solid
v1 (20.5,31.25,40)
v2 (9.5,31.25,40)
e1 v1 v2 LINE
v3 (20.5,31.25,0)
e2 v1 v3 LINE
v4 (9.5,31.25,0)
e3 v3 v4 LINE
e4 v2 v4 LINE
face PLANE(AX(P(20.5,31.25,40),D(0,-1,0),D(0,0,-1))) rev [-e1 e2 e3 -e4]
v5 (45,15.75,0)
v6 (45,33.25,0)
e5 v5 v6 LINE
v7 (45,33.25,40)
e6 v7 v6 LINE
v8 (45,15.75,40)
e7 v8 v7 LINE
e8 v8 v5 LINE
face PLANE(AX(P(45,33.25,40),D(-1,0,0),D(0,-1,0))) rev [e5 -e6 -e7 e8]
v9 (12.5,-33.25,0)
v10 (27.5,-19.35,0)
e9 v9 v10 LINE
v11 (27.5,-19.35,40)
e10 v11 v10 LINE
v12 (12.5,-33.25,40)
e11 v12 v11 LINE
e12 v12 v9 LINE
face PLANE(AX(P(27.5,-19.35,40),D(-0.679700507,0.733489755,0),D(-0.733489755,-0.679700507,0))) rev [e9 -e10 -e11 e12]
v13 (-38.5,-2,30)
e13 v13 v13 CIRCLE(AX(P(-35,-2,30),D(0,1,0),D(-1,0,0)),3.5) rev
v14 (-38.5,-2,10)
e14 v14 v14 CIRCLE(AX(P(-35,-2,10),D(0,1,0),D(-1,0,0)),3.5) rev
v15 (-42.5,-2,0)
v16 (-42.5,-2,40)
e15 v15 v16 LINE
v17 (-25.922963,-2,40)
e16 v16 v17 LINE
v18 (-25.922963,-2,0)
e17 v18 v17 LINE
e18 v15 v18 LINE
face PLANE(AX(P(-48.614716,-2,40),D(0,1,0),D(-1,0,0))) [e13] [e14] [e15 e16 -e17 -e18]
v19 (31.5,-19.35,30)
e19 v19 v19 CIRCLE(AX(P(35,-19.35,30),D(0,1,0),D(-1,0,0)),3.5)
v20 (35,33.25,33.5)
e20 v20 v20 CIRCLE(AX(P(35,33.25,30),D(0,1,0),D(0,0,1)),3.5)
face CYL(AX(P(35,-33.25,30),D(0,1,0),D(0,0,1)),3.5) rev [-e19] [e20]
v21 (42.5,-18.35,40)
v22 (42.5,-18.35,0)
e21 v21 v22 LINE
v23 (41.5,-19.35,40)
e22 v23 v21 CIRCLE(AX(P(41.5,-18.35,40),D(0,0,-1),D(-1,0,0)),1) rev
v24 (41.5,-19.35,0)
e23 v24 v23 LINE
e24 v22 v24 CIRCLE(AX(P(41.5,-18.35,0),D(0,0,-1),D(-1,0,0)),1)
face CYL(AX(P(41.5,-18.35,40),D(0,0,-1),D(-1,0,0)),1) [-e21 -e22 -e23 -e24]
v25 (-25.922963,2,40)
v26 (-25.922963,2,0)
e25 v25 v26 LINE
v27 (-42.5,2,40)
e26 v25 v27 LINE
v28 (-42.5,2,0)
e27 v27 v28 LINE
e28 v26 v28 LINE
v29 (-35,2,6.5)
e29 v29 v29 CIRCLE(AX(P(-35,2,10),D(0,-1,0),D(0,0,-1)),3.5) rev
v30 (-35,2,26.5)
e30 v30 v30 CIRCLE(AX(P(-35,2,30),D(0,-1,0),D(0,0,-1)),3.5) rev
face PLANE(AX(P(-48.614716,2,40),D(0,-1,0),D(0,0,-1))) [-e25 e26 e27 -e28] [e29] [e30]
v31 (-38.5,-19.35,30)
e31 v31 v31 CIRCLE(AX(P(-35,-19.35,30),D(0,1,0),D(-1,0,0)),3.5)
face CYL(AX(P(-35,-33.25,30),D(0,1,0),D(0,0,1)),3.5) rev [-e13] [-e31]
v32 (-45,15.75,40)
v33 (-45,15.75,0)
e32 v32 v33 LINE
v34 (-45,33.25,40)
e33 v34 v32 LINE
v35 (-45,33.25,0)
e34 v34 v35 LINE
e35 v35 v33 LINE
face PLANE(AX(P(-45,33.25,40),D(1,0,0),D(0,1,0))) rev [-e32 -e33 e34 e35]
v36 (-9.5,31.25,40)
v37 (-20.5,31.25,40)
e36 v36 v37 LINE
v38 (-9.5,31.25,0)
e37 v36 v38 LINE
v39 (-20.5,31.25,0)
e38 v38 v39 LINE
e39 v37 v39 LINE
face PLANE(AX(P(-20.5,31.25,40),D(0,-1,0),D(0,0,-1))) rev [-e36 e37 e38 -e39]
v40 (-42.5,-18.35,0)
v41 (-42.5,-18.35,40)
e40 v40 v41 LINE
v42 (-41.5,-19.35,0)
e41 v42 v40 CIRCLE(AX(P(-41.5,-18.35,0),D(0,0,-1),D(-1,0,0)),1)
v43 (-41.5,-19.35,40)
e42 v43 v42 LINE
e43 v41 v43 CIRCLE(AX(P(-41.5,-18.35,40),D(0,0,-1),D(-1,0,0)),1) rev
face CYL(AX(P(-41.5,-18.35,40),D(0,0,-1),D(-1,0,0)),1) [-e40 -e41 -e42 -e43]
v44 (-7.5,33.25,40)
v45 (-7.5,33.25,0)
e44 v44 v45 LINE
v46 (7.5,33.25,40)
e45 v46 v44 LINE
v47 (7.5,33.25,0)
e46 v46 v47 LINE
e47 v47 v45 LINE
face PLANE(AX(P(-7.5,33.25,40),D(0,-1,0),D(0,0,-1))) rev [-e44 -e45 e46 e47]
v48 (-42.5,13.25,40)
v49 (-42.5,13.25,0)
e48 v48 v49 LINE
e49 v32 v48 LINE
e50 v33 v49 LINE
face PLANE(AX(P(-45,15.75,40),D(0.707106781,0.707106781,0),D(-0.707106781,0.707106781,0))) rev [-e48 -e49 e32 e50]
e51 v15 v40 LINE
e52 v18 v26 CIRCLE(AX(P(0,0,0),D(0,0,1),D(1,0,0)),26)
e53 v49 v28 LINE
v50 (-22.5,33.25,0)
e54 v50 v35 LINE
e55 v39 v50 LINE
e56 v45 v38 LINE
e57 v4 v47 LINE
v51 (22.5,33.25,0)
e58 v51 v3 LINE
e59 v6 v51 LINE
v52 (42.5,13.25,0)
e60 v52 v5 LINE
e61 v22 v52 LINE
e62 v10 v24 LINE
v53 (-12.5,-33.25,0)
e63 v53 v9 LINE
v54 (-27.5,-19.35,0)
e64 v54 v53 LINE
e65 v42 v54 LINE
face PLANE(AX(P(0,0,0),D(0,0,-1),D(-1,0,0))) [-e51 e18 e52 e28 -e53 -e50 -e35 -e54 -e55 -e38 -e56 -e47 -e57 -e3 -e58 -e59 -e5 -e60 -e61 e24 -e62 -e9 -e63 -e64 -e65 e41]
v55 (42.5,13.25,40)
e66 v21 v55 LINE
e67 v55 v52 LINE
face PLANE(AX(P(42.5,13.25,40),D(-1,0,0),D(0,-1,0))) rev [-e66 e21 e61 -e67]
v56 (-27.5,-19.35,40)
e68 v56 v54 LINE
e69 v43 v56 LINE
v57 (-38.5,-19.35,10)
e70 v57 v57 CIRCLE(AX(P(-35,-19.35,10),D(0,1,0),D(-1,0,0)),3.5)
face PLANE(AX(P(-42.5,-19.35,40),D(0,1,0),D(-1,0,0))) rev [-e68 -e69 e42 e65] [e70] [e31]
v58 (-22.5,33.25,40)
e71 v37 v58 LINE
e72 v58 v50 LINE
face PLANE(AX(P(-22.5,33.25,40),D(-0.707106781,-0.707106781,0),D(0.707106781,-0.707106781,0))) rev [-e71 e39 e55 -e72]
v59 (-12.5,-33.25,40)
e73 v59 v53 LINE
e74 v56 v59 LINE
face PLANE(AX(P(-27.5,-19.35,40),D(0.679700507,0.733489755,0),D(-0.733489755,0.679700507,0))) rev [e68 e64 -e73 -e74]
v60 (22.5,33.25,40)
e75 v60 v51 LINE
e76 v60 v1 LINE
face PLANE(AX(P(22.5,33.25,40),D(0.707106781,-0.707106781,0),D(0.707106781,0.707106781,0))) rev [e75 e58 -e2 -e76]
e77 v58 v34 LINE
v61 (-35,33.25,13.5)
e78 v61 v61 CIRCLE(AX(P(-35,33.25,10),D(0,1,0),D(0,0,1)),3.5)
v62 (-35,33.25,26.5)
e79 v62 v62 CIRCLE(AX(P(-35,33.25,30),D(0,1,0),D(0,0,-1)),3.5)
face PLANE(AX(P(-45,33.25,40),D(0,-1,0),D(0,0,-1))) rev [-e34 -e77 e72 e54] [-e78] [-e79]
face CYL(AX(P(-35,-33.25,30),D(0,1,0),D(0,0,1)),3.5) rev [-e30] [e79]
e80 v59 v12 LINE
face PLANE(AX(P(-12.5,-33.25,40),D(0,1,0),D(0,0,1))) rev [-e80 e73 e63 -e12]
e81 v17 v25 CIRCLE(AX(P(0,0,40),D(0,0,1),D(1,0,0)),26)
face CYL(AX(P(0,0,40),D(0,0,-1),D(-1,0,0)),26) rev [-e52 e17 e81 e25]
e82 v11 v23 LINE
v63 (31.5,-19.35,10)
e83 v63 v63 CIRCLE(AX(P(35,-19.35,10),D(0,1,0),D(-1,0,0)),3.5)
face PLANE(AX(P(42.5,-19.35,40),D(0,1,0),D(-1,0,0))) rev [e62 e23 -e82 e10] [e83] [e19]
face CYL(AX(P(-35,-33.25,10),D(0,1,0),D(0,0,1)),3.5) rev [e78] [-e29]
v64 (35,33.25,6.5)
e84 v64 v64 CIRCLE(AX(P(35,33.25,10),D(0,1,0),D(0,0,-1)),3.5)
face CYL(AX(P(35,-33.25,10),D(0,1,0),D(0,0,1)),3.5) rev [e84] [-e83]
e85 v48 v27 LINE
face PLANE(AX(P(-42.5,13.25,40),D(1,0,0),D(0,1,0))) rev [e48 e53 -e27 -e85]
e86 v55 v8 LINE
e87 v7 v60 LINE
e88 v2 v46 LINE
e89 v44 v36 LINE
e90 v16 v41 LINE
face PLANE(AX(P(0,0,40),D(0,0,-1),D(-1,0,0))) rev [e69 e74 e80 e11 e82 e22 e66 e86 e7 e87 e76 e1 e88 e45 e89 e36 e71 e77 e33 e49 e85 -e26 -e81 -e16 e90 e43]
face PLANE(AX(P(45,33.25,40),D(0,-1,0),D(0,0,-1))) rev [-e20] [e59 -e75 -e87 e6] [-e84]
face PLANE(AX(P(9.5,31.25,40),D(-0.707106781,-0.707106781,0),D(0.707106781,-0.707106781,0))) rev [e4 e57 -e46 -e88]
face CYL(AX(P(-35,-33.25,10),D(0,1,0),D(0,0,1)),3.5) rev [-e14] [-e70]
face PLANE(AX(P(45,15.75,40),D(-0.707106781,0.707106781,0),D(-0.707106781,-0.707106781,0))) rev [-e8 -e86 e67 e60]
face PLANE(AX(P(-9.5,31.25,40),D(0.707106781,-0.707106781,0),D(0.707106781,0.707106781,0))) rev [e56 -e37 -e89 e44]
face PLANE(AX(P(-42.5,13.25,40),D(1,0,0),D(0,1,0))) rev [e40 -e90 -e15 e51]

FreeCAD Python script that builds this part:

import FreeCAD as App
import Part
import Sketcher

V = App.Vector
Q = App.Units.Quantity


def edges_at(feature, points):
    """Names of the edges that pass closest to the given points."""
    edges = feature.Shape.Edges
    near = lambda p: min(range(len(edges)), key=lambda i: edges[i].distToShape(Part.Vertex(*p))[0])
    return sorted({f"Edge{near(p) + 1}" for p in points})

doc = App.newDocument("Part")
body = doc.addObject("PartDesign::Body", "Body")

# Sketch on XY plane
sketch1 = body.newObject("Sketcher::SketchObject", "Sketch")
sketch1.AttachmentSupport = (doc.getObject("XY_Plane"), [""])
sketch1.MapMode = "FlatFace"
sketch1.addGeometry([
    Part.LineSegment(V(-12.5, -33.2, 0), V(12.5, -33.2, 0)),  # 0
    Part.LineSegment(V(12.5, -33.2, 0), V(27.5, -19.4, 0)),  # 1
    Part.LineSegment(V(27.5, -19.4, 0), V(42.5, -19.4, 0)),  # 2
    Part.LineSegment(V(42.5, -19.4, 0), V(42.5, 13.2, 0)),  # 3
    Part.LineSegment(V(42.5, 13.2, 0), V(45, 15.8, 0)),  # 4
    Part.LineSegment(V(45, 15.8, 0), V(45, 33.2, 0)),  # 5
    Part.LineSegment(V(45, 33.2, 0), V(22.5, 33.2, 0)),  # 6
    Part.LineSegment(V(22.5, 33.2, 0), V(20.5, 31.2, 0)),  # 7
    Part.LineSegment(V(20.5, 31.2, 0), V(9.5, 31.2, 0)),  # 8
    Part.LineSegment(V(9.5, 31.2, 0), V(7.5, 33.2, 0)),  # 9
    Part.LineSegment(V(7.5, 33.2, 0), V(-7.5, 33.2, 0)),  # 10
    Part.LineSegment(V(-7.5, 33.2, 0), V(-9.5, 31.2, 0)),  # 11
    Part.LineSegment(V(-9.5, 31.2, 0), V(-20.5, 31.2, 0)),  # 12
    Part.LineSegment(V(-20.5, 31.2, 0), V(-22.5, 33.2, 0)),  # 13
    Part.LineSegment(V(-22.5, 33.2, 0), V(-45, 33.2, 0)),  # 14
    Part.LineSegment(V(-45, 33.2, 0), V(-45, 15.8, 0)),  # 15
    Part.LineSegment(V(-45, 15.8, 0), V(-42.5, 13.2, 0)),  # 16
    Part.LineSegment(V(-42.5, 13.2, 0), V(-42.5, -19.4, 0)),  # 17
    Part.LineSegment(V(-42.5, -19.4, 0), V(-27.5, -19.4, 0)),  # 18
    Part.LineSegment(V(-27.5, -19.4, 0), V(-12.5, -33.2, 0)),  # 19
    Part.Circle(V(0, 0, 0), V(0, 0, 1), 26),  # 20
], False)
sketch1.addConstraint([
    Sketcher.Constraint("Coincident", 0, 2, 1, 1),
    Sketcher.Constraint("Coincident", 1, 2, 2, 1),
    Sketcher.Constraint("Coincident", 2, 2, 3, 1),
    Sketcher.Constraint("Coincident", 3, 2, 4, 1),
    Sketcher.Constraint("Coincident", 4, 2, 5, 1),
    Sketcher.Constraint("Coincident", 5, 2, 6, 1),
    Sketcher.Constraint("Coincident", 6, 2, 7, 1),
    Sketcher.Constraint("Coincident", 7, 2, 8, 1),
    Sketcher.Constraint("Coincident", 8, 2, 9, 1),
    Sketcher.Constraint("Coincident", 9, 2, 10, 1),
    Sketcher.Constraint("Coincident", 10, 2, 11, 1),
    Sketcher.Constraint("Coincident", 11, 2, 12, 1),
    Sketcher.Constraint("Coincident", 12, 2, 13, 1),
    Sketcher.Constraint("Coincident", 13, 2, 14, 1),
    Sketcher.Constraint("Coincident", 14, 2, 15, 1),
    Sketcher.Constraint("Coincident", 15, 2, 16, 1),
    Sketcher.Constraint("Coincident", 16, 2, 17, 1),
    Sketcher.Constraint("Coincident", 17, 2, 18, 1),
    Sketcher.Constraint("Coincident", 18, 2, 19, 1),
    Sketcher.Constraint("Coincident", 19, 2, 0, 1),
    Sketcher.Constraint("Horizontal", 0),
    Sketcher.Constraint("Horizontal", 2),
    Sketcher.Constraint("Vertical", 3),
    Sketcher.Constraint("Vertical", 5),
    Sketcher.Constraint("Horizontal", 6),
    Sketcher.Constraint("Horizontal", 8),
    Sketcher.Constraint("Horizontal", 10),
    Sketcher.Constraint("Horizontal", 12),
    Sketcher.Constraint("Horizontal", 14),
    Sketcher.Constraint("Vertical", 15),
    Sketcher.Constraint("Vertical", 17),
    Sketcher.Constraint("Horizontal", 18),
    Sketcher.Constraint("Coincident", 20, 3, -1, 1),
    Sketcher.Constraint("Symmetric", 8, 2, 11, 2, -2),
    Sketcher.Constraint("Symmetric", 6, 2, 13, 2, -2),
    Sketcher.Constraint("Symmetric", 4, 2, 15, 2, -2),
    Sketcher.Constraint("Symmetric", 3, 2, 16, 2, -2),
    Sketcher.Constraint("Symmetric", 1, 2, 18, 2, -2),
    Sketcher.Constraint("Parallel", 4, 7),
    Sketcher.Constraint("Perpendicular", 7, 9),
    Sketcher.Constraint("Perpendicular", 9, 11),
    Sketcher.Constraint("Perpendicular", 11, 13),
    Sketcher.Constraint("Parallel", 13, 16),
    Sketcher.Constraint("Horizontal", 6, 2, 9, 2),
    Sketcher.Constraint("Equal", 2, 10),
    Sketcher.Constraint("Equal", 1, 19),
    Sketcher.Constraint("Diameter", 20, Q("52 mm")),
    Sketcher.Constraint("DistanceX", 0, 1, 0, 2, Q("25 mm")),
    Sketcher.Constraint("DistanceX", 2, 1, 2, 2, Q("15 mm")),
    Sketcher.Constraint("DistanceX", 8, 2, 8, 1, Q("11 mm")),
    Sketcher.Constraint("DistanceX", 6, 2, 6, 1, Q("22.5 mm")),
    Sketcher.Constraint("DistanceY", 3, 1, 3, 2, Q("32.6 mm")),
    Sketcher.Constraint("DistanceY", 5, 1, 5, 2, Q("17.5 mm")),
    Sketcher.Constraint("DistanceX", -1, 1, 4, 2, Q("45 mm")),
    Sketcher.Constraint("DistanceX", 0, 2, 1, 2, Q("15 mm")),
    Sketcher.Constraint("DistanceY", 0, 2, 4, 2, Q("49 mm")),
    Sketcher.Constraint("DistanceY", 0, 2, -1, 1, Q("33.25 mm")),
])
pad1 = body.newObject("PartDesign::Pad", "Pad")
pad1.Profile = sketch1
pad1.Length = 40

# Sketch on XZ plane
sketch2 = body.newObject("Sketcher::SketchObject", "Sketch001")
sketch2.AttachmentSupport = (doc.getObject("XZ_Plane"), [""])
sketch2.MapMode = "FlatFace"
sketch2.AttachmentOffset = App.Placement(V(0, 0, -33.25), App.Rotation())
sketch2.addGeometry([
    Part.Circle(V(-35, 10, 0), V(0, 0, 1), 3.5),
    Part.Circle(V(-35, 30, 0), V(0, 0, 1), 3.5),
    Part.Circle(V(35, 30, 0), V(0, 0, 1), 3.5),
    Part.Circle(V(35, 10, 0), V(0, 0, 1), 3.5),
], False)
sketch2.addConstraint([
    Sketcher.Constraint("Equal", 0, 1),
    Sketcher.Constraint("Equal", 1, 2),
    Sketcher.Constraint("Equal", 2, 3),
    Sketcher.Constraint("Symmetric", 1, 3, 2, 3, -2),
    Sketcher.Constraint("Symmetric", 0, 3, 3, 3, -2),
    Sketcher.Constraint("Vertical", 0, 3, 1, 3),
    Sketcher.Constraint("Diameter", 0, Q("7 mm")),
    Sketcher.Constraint("DistanceX", 0, 3, -1, 1, Q("35 mm")),
    Sketcher.Constraint("DistanceY", -1, 1, 0, 3, Q("10 mm")),
    Sketcher.Constraint("DistanceY", -1, 1, 1, 3, Q("30 mm")),
])
pocket1 = body.newObject("PartDesign::Pocket", "Pocket")
pocket1.Profile = sketch2
pocket1.Type = "ThroughAll"
pocket1.Reversed = True

# Sketch on XY plane
sketch3 = body.newObject("Sketcher::SketchObject", "Sketch002")
sketch3.AttachmentSupport = (doc.getObject("XY_Plane"), [""])
sketch3.MapMode = "FlatFace"
sketch3.addGeometry([
    Part.LineSegment(V(-48.6, 2, 0), V(-48.6, -2, 0)),
    Part.LineSegment(V(-48.6, -2, 0), V(-15, -2, 0)),
    Part.LineSegment(V(-15, -2, 0), V(-15, 2, 0)),
    Part.LineSegment(V(-15, 2, 0), V(-48.6, 2, 0)),
], False)
sketch3.addConstraint([
    Sketcher.Constraint("Coincident", 0, 2, 1, 1),
    Sketcher.Constraint("Coincident", 1, 2, 2, 1),
    Sketcher.Constraint("Coincident", 2, 2, 3, 1),
    Sketcher.Constraint("Coincident", 3, 2, 0, 1),
    Sketcher.Constraint("Vertical", 0),
    Sketcher.Constraint("Horizontal", 1),
    Sketcher.Constraint("Vertical", 2),
    Sketcher.Constraint("Horizontal", 3),
    Sketcher.Constraint("DistanceY", 0, 2, 0, 1, Q("4 mm")),
    Sketcher.Constraint("DistanceY", 0, 2, -1, 1, Q("2 mm")),
    Sketcher.Constraint("DistanceX", 1, 1, 1, 2, Q("33.659948 mm")),
    Sketcher.Constraint("DistanceX", 0, 2, -1, 1, Q("48.614716 mm")),
])
pocket2 = body.newObject("PartDesign::Pocket", "Pocket001")
pocket2.Profile = sketch3
pocket2.Type = "ThroughAll"
pocket2.Reversed = True
doc.recompute()

fillet = body.newObject("PartDesign::Fillet", "Fillet")
fillet.Base = (pocket2, edges_at(pocket2, [(42.5, -19.35, 20), (-42.5, -19.35, 20)]))
fillet.Radius = 1

doc.recompute()
